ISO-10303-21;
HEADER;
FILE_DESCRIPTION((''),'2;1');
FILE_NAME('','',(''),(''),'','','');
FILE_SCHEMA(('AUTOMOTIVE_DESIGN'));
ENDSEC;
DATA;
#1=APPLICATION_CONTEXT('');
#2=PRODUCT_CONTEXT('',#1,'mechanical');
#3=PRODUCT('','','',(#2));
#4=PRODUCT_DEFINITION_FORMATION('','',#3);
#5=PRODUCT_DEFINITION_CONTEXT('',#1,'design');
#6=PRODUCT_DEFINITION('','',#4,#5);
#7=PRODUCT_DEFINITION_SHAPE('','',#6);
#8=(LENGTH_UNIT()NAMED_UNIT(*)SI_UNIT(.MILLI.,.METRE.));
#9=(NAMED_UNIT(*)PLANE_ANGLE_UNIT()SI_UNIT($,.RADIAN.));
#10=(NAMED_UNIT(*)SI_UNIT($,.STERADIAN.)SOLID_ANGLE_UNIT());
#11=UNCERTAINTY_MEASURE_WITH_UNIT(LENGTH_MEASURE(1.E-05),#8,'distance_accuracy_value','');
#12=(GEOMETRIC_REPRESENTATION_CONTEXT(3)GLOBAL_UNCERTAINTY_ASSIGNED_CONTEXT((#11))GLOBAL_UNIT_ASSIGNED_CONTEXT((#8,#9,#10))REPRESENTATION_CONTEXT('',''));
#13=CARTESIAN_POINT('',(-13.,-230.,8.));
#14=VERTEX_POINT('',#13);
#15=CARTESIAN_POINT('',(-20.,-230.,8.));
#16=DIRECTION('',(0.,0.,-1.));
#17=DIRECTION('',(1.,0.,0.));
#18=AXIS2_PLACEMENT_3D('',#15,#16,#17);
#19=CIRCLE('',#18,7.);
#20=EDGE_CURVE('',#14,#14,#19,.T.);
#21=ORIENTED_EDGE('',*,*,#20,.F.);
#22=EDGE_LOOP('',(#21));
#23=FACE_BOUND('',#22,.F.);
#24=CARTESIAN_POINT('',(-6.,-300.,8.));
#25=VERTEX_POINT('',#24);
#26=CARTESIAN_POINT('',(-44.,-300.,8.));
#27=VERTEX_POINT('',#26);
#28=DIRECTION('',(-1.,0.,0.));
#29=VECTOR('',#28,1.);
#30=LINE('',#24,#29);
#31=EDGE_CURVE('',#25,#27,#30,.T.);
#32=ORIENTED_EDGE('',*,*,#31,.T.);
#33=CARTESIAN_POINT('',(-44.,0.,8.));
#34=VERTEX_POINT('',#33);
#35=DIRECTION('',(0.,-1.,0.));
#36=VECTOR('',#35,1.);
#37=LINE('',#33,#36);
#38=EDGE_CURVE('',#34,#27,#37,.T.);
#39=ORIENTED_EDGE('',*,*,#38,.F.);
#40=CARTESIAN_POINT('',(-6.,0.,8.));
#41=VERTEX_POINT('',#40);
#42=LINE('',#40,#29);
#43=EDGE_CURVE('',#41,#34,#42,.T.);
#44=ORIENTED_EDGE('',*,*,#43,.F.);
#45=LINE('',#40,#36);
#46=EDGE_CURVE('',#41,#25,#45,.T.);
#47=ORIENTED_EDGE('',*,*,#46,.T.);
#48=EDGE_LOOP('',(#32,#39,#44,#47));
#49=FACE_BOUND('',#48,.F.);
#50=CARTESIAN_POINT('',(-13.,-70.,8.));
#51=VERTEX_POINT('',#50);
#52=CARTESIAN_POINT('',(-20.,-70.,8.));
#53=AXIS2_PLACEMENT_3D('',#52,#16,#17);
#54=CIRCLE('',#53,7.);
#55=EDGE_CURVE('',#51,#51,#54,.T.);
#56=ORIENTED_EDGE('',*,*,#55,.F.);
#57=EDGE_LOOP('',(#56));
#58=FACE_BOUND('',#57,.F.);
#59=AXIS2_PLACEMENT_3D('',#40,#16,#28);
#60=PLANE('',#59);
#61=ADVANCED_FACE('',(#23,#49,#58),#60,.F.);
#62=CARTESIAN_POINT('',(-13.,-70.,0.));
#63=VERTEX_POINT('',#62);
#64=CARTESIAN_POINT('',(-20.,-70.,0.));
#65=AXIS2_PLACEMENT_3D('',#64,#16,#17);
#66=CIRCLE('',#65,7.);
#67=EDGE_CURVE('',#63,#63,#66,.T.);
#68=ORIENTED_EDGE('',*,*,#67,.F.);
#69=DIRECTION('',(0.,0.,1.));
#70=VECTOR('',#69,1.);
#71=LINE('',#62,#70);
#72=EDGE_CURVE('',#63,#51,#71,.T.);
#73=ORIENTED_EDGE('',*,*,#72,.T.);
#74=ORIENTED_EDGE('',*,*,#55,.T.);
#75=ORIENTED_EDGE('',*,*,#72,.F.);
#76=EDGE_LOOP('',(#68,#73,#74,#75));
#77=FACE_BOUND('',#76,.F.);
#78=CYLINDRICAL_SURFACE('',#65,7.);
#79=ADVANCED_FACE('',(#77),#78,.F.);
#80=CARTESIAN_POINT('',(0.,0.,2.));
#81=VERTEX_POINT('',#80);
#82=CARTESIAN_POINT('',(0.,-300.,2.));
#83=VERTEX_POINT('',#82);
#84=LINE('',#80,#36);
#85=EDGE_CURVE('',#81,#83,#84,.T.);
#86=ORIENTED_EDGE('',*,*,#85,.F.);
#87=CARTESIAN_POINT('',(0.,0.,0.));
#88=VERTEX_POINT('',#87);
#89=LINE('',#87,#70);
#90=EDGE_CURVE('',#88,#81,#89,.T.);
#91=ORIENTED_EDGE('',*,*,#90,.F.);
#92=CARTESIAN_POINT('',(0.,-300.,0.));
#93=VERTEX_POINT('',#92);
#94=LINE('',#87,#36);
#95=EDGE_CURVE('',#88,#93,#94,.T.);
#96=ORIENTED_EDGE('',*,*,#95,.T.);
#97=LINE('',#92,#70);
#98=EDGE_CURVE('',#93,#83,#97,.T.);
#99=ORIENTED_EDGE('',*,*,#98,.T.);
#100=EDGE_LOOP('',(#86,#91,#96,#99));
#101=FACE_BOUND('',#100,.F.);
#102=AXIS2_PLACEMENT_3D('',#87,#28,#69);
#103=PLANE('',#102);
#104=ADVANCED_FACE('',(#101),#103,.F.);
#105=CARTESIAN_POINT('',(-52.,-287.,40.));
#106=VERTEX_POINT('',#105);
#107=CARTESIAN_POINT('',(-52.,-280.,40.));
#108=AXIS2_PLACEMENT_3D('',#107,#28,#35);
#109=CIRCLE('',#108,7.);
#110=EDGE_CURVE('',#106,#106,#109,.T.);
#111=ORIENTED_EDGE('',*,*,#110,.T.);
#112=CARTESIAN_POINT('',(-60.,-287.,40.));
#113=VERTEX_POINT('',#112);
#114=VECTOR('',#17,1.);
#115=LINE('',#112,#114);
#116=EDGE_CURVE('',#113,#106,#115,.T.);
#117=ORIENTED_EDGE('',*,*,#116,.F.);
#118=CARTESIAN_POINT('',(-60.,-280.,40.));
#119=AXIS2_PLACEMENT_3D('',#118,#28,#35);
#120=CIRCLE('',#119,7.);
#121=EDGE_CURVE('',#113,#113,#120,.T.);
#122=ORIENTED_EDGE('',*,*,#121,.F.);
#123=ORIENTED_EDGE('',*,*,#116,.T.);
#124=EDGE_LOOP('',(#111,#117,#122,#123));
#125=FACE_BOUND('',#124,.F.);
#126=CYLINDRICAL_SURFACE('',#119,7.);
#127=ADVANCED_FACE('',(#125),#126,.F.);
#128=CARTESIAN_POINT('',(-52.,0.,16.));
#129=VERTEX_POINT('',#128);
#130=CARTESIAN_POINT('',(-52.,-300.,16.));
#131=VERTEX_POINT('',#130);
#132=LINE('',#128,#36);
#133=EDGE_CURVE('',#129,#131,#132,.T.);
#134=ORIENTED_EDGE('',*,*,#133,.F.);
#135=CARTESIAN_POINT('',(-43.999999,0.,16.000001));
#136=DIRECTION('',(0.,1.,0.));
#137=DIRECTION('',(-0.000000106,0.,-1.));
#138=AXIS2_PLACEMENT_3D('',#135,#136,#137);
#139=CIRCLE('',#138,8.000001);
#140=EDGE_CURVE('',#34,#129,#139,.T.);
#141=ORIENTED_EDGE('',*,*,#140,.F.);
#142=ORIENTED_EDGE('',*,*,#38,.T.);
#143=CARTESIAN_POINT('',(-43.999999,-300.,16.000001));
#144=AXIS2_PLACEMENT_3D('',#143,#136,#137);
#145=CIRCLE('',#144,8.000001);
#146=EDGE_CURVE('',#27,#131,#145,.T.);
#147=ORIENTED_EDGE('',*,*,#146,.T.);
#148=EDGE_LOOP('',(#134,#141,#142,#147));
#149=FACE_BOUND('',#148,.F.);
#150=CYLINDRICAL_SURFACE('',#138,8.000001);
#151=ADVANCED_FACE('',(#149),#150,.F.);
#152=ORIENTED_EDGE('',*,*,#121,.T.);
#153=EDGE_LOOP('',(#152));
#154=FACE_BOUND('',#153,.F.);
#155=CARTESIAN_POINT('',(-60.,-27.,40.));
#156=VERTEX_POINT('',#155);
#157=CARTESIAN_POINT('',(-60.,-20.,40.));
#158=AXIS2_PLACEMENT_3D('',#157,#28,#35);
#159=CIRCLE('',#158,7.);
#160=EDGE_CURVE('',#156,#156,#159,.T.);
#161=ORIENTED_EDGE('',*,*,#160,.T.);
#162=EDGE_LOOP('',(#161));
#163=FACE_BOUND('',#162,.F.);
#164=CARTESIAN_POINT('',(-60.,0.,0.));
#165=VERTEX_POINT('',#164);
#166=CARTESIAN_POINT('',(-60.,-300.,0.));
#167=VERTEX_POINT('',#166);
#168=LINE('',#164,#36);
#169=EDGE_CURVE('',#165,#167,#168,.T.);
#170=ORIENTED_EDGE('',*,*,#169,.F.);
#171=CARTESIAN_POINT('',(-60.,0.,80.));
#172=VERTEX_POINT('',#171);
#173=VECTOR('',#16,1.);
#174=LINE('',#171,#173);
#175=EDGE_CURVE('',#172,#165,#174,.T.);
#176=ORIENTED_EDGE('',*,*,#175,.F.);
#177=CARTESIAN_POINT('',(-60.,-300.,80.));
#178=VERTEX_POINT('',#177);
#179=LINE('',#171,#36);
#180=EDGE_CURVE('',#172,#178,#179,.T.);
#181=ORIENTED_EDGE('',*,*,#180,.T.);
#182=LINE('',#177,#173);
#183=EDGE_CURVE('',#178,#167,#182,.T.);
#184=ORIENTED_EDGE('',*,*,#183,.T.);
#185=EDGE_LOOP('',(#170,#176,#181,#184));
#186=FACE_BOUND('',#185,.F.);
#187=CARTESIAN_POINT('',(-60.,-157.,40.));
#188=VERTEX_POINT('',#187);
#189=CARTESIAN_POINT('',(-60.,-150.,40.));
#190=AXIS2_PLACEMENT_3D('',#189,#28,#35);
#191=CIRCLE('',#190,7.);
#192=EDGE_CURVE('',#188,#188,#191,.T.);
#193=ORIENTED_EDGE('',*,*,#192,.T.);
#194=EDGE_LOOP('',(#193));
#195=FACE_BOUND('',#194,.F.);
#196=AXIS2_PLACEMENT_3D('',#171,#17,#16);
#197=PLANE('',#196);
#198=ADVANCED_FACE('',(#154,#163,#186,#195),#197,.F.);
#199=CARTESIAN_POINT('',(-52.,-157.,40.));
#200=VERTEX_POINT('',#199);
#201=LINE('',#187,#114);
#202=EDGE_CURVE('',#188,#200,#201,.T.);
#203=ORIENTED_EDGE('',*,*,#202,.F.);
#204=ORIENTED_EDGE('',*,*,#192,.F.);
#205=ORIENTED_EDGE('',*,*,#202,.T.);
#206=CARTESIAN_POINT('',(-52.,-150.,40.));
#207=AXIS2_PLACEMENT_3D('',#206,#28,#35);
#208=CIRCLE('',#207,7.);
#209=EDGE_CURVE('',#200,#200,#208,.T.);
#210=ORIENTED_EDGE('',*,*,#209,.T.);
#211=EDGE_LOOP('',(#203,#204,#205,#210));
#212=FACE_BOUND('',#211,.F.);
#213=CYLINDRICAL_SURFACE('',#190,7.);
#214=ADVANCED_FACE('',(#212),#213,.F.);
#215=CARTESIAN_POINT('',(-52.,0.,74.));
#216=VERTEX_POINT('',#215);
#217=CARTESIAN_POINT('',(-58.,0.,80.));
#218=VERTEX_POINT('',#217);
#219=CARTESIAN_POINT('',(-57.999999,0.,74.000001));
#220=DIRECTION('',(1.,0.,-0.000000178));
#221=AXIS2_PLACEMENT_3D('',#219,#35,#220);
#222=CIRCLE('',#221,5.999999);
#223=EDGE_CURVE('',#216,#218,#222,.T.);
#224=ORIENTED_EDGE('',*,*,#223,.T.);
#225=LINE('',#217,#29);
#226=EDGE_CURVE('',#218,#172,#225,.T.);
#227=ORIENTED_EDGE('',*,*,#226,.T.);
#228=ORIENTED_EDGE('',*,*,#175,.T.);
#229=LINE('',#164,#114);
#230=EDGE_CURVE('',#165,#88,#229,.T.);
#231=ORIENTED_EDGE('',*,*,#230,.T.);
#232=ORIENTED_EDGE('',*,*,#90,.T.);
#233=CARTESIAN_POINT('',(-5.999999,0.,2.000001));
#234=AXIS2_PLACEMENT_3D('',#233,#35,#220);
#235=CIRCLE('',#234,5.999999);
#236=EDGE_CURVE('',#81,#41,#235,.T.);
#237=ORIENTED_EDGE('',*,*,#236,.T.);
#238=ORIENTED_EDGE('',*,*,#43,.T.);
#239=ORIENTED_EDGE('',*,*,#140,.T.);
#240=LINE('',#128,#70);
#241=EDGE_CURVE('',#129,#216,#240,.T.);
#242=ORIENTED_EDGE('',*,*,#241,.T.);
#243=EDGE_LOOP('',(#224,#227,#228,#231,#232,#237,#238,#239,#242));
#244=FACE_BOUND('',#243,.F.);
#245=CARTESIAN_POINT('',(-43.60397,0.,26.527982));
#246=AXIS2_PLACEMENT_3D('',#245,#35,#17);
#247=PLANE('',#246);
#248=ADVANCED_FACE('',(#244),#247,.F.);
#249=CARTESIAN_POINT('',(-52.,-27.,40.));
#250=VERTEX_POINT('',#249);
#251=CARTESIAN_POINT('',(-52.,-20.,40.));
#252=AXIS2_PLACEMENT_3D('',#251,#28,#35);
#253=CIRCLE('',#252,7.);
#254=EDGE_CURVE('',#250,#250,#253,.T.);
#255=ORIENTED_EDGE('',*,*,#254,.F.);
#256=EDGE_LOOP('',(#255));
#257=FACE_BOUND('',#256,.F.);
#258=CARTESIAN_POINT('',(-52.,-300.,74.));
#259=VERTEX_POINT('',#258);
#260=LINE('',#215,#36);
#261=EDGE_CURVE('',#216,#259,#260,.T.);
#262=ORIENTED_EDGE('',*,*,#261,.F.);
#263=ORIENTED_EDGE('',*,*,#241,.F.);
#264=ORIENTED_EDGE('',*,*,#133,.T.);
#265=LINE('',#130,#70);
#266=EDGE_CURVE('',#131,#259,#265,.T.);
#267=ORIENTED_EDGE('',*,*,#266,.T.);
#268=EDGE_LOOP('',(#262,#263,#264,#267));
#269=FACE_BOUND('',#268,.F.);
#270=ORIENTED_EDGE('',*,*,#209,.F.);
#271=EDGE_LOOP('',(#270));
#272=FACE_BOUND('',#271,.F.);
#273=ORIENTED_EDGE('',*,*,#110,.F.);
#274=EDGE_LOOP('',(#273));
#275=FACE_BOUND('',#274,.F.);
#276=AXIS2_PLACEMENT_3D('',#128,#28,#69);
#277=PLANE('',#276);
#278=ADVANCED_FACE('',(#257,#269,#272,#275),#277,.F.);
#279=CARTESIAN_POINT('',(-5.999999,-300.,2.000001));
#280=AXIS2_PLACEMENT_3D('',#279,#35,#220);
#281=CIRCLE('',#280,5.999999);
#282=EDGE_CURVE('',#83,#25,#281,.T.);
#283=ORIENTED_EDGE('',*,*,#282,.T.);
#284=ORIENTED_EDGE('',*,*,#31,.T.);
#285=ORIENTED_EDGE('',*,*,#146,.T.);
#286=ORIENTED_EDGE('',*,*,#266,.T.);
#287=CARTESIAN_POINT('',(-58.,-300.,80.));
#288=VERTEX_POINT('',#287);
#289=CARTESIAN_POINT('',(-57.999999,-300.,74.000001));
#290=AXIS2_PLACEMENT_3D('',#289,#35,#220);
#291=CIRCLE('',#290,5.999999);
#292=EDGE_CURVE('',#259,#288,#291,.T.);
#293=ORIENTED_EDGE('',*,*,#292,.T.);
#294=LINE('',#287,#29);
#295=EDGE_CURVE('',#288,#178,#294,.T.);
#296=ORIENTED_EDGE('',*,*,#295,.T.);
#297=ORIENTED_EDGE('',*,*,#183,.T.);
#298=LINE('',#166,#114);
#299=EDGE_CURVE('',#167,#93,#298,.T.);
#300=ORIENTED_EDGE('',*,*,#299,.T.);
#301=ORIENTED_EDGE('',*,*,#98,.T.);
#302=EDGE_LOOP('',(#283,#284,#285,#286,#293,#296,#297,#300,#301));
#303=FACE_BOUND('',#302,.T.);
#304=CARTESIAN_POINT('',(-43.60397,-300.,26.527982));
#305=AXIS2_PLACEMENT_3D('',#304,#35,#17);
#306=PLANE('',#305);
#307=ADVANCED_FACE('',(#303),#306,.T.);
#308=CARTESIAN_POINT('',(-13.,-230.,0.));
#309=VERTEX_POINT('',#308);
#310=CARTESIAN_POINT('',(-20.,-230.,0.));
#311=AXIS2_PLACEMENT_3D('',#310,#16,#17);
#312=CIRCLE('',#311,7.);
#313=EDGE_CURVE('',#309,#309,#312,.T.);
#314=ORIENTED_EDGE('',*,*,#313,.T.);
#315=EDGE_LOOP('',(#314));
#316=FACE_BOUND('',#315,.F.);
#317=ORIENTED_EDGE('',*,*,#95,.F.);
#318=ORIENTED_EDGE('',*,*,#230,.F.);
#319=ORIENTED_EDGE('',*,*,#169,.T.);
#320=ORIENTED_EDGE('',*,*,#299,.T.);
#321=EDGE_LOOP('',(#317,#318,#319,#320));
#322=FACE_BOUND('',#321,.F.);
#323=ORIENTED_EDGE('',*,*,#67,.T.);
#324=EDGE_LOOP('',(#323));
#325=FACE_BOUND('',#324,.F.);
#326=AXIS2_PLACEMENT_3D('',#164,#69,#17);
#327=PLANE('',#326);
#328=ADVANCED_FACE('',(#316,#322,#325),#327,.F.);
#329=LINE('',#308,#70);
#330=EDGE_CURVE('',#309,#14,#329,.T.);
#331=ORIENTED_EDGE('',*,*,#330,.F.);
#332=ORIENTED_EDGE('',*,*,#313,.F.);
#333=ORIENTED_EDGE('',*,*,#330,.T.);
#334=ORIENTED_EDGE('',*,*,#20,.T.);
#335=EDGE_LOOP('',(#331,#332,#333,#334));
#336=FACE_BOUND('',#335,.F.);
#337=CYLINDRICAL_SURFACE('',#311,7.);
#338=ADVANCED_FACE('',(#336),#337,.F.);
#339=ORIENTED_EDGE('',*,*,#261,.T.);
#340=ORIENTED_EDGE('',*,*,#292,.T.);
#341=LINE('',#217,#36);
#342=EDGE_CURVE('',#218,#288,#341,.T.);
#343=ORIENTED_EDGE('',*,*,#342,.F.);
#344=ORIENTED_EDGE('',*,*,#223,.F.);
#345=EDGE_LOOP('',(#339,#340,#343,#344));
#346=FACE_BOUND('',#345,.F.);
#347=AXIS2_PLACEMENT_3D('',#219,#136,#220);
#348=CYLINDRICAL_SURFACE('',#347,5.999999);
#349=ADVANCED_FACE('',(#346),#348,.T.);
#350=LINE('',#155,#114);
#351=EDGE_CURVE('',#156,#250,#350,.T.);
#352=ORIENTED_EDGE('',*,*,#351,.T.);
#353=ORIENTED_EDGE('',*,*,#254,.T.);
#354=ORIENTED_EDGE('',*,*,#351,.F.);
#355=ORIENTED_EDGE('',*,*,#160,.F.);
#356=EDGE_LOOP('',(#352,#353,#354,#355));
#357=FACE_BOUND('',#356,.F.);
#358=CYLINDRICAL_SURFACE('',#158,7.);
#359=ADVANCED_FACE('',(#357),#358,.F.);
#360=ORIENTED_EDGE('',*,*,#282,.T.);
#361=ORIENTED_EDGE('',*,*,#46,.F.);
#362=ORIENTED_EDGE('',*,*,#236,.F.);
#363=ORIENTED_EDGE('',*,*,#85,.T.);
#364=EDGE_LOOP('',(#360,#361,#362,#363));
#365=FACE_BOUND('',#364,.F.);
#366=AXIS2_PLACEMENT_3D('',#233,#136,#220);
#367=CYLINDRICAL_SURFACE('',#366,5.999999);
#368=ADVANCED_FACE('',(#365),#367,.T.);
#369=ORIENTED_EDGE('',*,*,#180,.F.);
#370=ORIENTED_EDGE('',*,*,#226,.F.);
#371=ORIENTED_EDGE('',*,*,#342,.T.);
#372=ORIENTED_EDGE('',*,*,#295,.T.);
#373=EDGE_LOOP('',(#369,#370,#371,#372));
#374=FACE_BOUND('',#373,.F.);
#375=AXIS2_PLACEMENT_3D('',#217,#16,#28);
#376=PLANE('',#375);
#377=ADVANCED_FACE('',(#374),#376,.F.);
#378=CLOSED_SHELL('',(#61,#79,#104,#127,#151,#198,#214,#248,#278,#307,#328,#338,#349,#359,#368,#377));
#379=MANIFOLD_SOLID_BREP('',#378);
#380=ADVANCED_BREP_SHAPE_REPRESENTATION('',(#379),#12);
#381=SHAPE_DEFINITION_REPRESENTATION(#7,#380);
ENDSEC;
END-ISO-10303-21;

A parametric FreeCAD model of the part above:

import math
import FreeCAD as App
import Part
import Sketcher
from FreeCAD import Vector
Q = App.Units.Quantity

doc = App.newDocument("Part")
body = doc.addObject("PartDesign::Body", "Body")

sketch1 = body.newObject("Sketcher::SketchObject", "Sketch")
sketch1.AttachmentSupport = (doc.getObject("XZ_Plane"), [""])
sketch1.MapMode = "FlatFace"
sketch1.addGeometry(Part.LineSegment(Vector(-60, 0, 0), Vector(0, 0, 0)), False)
sketch1.addGeometry(Part.LineSegment(Vector(0, 0, 0), Vector(0, 2, 0)), False)
sketch1.addGeometry(Part.ArcOfCircle(Part.Circle(Vector(-5.999999, 2.000001, 0), Vector(0, 0, 1), 5.999999), math.radians(-0.00001), math.radians(90.00001)), False)
sketch1.addGeometry(Part.LineSegment(Vector(-6, 8, 0), Vector(-44, 8, 0)), False)
sketch1.addGeometry(Part.ArcOfCircle(Part.Circle(Vector(-43.999999, 16.000001, 0), Vector(0, 0, 1), 8.000001), math.radians(-179.999994), math.radians(-90.000006)), False)
sketch1.addGeometry(Part.LineSegment(Vector(-52, 16, 0), Vector(-52, 74, 0)), False)
sketch1.addGeometry(Part.ArcOfCircle(Part.Circle(Vector(-57.999999, 74.000001, 0), Vector(0, 0, 1), 5.999999), math.radians(-0.00001), math.radians(90.00001)), False)
sketch1.addGeometry(Part.LineSegment(Vector(-58, 80, 0), Vector(-60, 80, 0)), False)
sketch1.addGeometry(Part.LineSegment(Vector(-60, 80, 0), Vector(-60, 0, 0)), False)
sketch1.addConstraint(Sketcher.Constraint("Coincident", 0, 2, 1, 1))
sketch1.addConstraint(Sketcher.Constraint("Tangent", 1, 2, 2, 1))
sketch1.addConstraint(Sketcher.Constraint("Tangent", 2, 2, 3, 1))
sketch1.addConstraint(Sketcher.Constraint("Tangent", 3, 2, 4, 2))
sketch1.addConstraint(Sketcher.Constraint("Tangent", 4, 1, 5, 1))
sketch1.addConstraint(Sketcher.Constraint("Tangent", 5, 2, 6, 1))
sketch1.addConstraint(Sketcher.Constraint("Tangent", 6, 2, 7, 1))
sketch1.addConstraint(Sketcher.Constraint("Coincident", 7, 2, 8, 1))
sketch1.addConstraint(Sketcher.Constraint("Coincident", 8, 2, 0, 1))
sketch1.addConstraint(Sketcher.Constraint("Horizontal", 0))
sketch1.addConstraint(Sketcher.Constraint("Vertical", 1))
sketch1.addConstraint(Sketcher.Constraint("Horizontal", 3))
sketch1.addConstraint(Sketcher.Constraint("Vertical", 5))
sketch1.addConstraint(Sketcher.Constraint("Horizontal", 7))
sketch1.addConstraint(Sketcher.Constraint("Vertical", 8))
sketch1.addConstraint(Sketcher.Constraint("Coincident", 0, 2, -1, 1))
sketch1.addConstraint(Sketcher.Constraint("Equal", 2, 6))
sketch1.addConstraint(Sketcher.Constraint("Equal", 7, 1))
sketch1.addConstraint(Sketcher.Constraint("Radius", 2, Q("5.999999 mm")))
sketch1.addConstraint(Sketcher.Constraint("Radius", 4, Q("8.000001 mm")))
sketch1.addConstraint(Sketcher.Constraint("DistanceX", 0, 1, 0, 2, Q("60 mm")))
sketch1.addConstraint(Sketcher.Constraint("DistanceX", 3, 2, 3, 1, Q("38 mm")))
sketch1.addConstraint(Sketcher.Constraint("DistanceY", 5, 1, 5, 2, Q("58 mm")))
pad1 = body.newObject("PartDesign::Pad", "Pad")
pad1.Profile = sketch1
pad1.Length = 300

sketch2 = body.newObject("Sketcher::SketchObject", "Sketch001")
sketch2.AttachmentSupport = (doc.getObject("YZ_Plane"), [""])
sketch2.MapMode = "FlatFace"
sketch2.AttachmentOffset = App.Placement(Vector(0, 0, -60), App.Rotation())
sketch2.addGeometry(Part.Circle(Vector(-20, 40, 0), Vector(0, 0, 1), 7), False)
sketch2.addGeometry(Part.Circle(Vector(-150, 40, 0), Vector(0, 0, 1), 7), False)
sketch2.addGeometry(Part.Circle(Vector(-280, 40, 0), Vector(0, 0, 1), 7), False)
sketch2.addConstraint(Sketcher.Constraint("Equal", 0, 1))
sketch2.addConstraint(Sketcher.Constraint("Equal", 1, 2))
sketch2.addConstraint(Sketcher.Constraint("Horizontal", 0, 3, 1, 3))
sketch2.addConstraint(Sketcher.Constraint("Horizontal", 1, 3, 2, 3))
sketch2.addConstraint(Sketcher.Constraint("Diameter", 0, Q("14 mm")))
sketch2.addConstraint(Sketcher.Constraint("DistanceX", 0, 3, -1, 1, Q("20 mm")))
sketch2.addConstraint(Sketcher.Constraint("DistanceY", -1, 1, 0, 3, Q("40 mm")))
sketch2.addConstraint(Sketcher.Constraint("DistanceX", 1, 3, -1, 1, Q("150 mm")))
sketch2.addConstraint(Sketcher.Constraint("DistanceX", 2, 3, -1, 1, Q("280 mm")))
pocket1 = body.newObject("PartDesign::Pocket", "Pocket")
pocket1.Profile = sketch2
pocket1.Length = 25
pocket1.Reversed = True

sketch3 = body.newObject("Sketcher::SketchObject", "Sketch002")
sketch3.AttachmentSupport = (doc.getObject("XY_Plane"), [""])
sketch3.MapMode = "FlatFace"
sketch3.addGeometry(Part.Circle(Vector(-20, -70, 0), Vector(0, 0, 1), 7), False)
sketch3.addGeometry(Part.Circle(Vector(-20, -230, 0), Vector(0, 0, 1), 7), False)
sketch3.addConstraint(Sketcher.Constraint("Equal", 0, 1))
sketch3.addConstraint(Sketcher.Constraint("Vertical", 0, 3, 1, 3))
sketch3.addConstraint(Sketcher.Constraint("Diameter", 0, Q("14 mm")))
sketch3.addConstraint(Sketcher.Constraint("DistanceX", 0, 3, -1, 1, Q("20 mm")))
sketch3.addConstraint(Sketcher.Constraint("DistanceY", 0, 3, -1, 1, Q("70 mm")))
sketch3.addConstraint(Sketcher.Constraint("DistanceY", 1, 3, -1, 1, Q("230 mm")))
pocket2 = body.newObject("PartDesign::Pocket", "Pocket001")
pocket2.Profile = sketch3
pocket2.Length = 25
pocket2.Reversed = True

doc.recompute()
